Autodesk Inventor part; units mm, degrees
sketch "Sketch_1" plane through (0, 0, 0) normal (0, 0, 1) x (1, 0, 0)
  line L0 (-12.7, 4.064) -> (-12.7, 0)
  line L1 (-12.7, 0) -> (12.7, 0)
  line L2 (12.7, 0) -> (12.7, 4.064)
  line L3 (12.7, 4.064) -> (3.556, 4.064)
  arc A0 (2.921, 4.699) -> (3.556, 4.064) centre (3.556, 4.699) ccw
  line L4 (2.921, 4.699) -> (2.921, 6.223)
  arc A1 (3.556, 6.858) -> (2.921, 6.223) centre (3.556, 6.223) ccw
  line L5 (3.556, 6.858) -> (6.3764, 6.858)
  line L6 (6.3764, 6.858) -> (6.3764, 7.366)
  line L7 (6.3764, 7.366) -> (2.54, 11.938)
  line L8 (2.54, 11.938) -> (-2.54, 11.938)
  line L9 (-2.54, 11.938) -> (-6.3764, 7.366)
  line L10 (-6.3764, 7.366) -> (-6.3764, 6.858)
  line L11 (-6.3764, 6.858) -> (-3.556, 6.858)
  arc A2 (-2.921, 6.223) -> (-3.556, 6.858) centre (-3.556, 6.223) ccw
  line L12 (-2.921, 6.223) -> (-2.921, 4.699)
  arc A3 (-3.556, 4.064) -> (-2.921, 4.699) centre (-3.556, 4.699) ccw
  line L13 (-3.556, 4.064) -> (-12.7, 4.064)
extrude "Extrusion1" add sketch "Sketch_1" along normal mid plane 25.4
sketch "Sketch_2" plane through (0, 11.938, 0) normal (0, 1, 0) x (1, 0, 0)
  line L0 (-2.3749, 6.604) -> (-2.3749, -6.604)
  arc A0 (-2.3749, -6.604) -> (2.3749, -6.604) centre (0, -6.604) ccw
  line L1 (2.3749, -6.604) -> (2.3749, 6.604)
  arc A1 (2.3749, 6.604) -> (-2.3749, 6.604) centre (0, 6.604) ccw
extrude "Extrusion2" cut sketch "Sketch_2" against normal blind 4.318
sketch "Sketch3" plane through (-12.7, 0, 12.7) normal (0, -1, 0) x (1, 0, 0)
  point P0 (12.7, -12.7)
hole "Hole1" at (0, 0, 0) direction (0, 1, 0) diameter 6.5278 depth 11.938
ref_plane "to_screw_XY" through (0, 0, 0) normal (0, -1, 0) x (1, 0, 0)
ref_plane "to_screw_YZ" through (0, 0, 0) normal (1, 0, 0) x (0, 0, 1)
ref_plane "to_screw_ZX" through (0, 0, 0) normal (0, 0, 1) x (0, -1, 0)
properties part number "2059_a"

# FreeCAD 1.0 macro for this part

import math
import FreeCAD as App
import Part
import Sketcher

V = App.Vector
Q = App.Units.Quantity

doc = App.newDocument("Part")
body = doc.addObject("PartDesign::Body", "Body")

sketch1 = body.newObject("Sketcher::SketchObject", "Sketch")
sketch1.AttachmentSupport = (doc.getObject("XY_Plane"), [""])
sketch1.MapMode = "FlatFace"
sketch1.addGeometry(Part.LineSegment(V(-3.6, 4.1, 0), V(-12.7, 4.1, 0)), False)
sketch1.addGeometry(Part.LineSegment(V(-12.7, 4.1, 0), V(-12.7, 0, 0)), False)
sketch1.addGeometry(Part.LineSegment(V(-12.7, 0, 0), V(12.7, 0, 0)), False)
sketch1.addGeometry(Part.LineSegment(V(12.7, 0, 0), V(12.7, 4.1, 0)), False)
sketch1.addGeometry(Part.LineSegment(V(12.7, 4.1, 0), V(3.6, 4.1, 0)), False)
sketch1.addGeometry(Part.ArcOfCircle(Part.Circle(V(3.6, 4.7, 0), V(0, 0, 1), 0.6), math.radians(180), math.radians(270)), False)
sketch1.addGeometry(Part.LineSegment(V(2.9, 4.7, 0), V(2.9, 6.2, 0)), False)
sketch1.addGeometry(Part.ArcOfCircle(Part.Circle(V(3.6, 6.2, 0), V(0, 0, 1), 0.6), math.radians(90), math.radians(180)), False)
sketch1.addGeometry(Part.LineSegment(V(3.6, 6.9, 0), V(6.4, 6.9, 0)), False)
sketch1.addGeometry(Part.LineSegment(V(6.4, 6.9, 0), V(6.4, 7.4, 0)), False)
sketch1.addGeometry(Part.LineSegment(V(6.4, 7.4, 0), V(2.5, 11.9, 0)), False)
sketch1.addGeometry(Part.LineSegment(V(2.5, 11.9, 0), V(-2.5, 11.9, 0)), False)
sketch1.addGeometry(Part.LineSegment(V(-2.5, 11.9, 0), V(-6.4, 7.4, 0)), False)
sketch1.addGeometry(Part.LineSegment(V(-6.4, 7.4, 0), V(-6.4, 6.9, 0)), False)
sketch1.addGeometry(Part.LineSegment(V(-6.4, 6.9, 0), V(-3.6, 6.9, 0)), False)
sketch1.addGeometry(Part.ArcOfCircle(Part.Circle(V(-3.6, 6.2, 0), V(0, 0, 1), 0.6), math.radians(0), math.radians(90)), False)
sketch1.addGeometry(Part.LineSegment(V(-2.9, 6.2, 0), V(-2.9, 4.7, 0)), False)
sketch1.addGeometry(Part.ArcOfCircle(Part.Circle(V(-3.6, 4.7, 0), V(0, 0, 1), 0.6), math.radians(-90), math.radians(0)), False)
sketch1.addConstraint(Sketcher.Constraint("Coincident", 0, 2, 1, 1))
sketch1.addConstraint(Sketcher.Constraint("Coincident", 1, 2, 2, 1))
sketch1.addConstraint(Sketcher.Constraint("Coincident", 2, 2, 3, 1))
sketch1.addConstraint(Sketcher.Constraint("Coincident", 3, 2, 4, 1))
sketch1.addConstraint(Sketcher.Constraint("Tangent", 4, 2, 5, 2))
sketch1.addConstraint(Sketcher.Constraint("Tangent", 5, 1, 6, 1))
sketch1.addConstraint(Sketcher.Constraint("Tangent", 6, 2, 7, 2))
sketch1.addConstraint(Sketcher.Constraint("Tangent", 7, 1, 8, 1))
sketch1.addConstraint(Sketcher.Constraint("Coincident", 8, 2, 9, 1))
sketch1.addConstraint(Sketcher.Constraint("Coincident", 9, 2, 10, 1))
sketch1.addConstraint(Sketcher.Constraint("Coincident", 10, 2, 11, 1))
sketch1.addConstraint(Sketcher.Constraint("Coincident", 11, 2, 12, 1))
sketch1.addConstraint(Sketcher.Constraint("Coincident", 12, 2, 13, 1))
sketch1.addConstraint(Sketcher.Constraint("Coincident", 13, 2, 14, 1))
sketch1.addConstraint(Sketcher.Constraint("Tangent", 14, 2, 15, 2))
sketch1.addConstraint(Sketcher.Constraint("Tangent", 15, 1, 16, 1))
sketch1.addConstraint(Sketcher.Constraint("Tangent", 16, 2, 17, 2))
sketch1.addConstraint(Sketcher.Constraint("Tangent", 17, 1, 0, 1))
sketch1.addConstraint(Sketcher.Constraint("Horizontal", 0))
sketch1.addConstraint(Sketcher.Constraint("Vertical", 1))
sketch1.addConstraint(Sketcher.Constraint("Horizontal", 2))
sketch1.addConstraint(Sketcher.Constraint("Vertical", 3))
sketch1.addConstraint(Sketcher.Constraint("Horizontal", 4))
sketch1.addConstraint(Sketcher.Constraint("Vertical", 6))
sketch1.addConstraint(Sketcher.Constraint("Horizontal", 8))
sketch1.addConstraint(Sketcher.Constraint("Vertical", 9))
sketch1.addConstraint(Sketcher.Constraint("Horizontal", 11))
sketch1.addConstraint(Sketcher.Constraint("Vertical", 13))
sketch1.addConstraint(Sketcher.Constraint("Horizontal", 14))
sketch1.addConstraint(Sketcher.Constraint("Vertical", 16))
sketch1.addConstraint(Sketcher.Constraint("Equal", 5, 7))
sketch1.addConstraint(Sketcher.Constraint("Equal", 7, 15))
sketch1.addConstraint(Sketcher.Constraint("Equal", 15, 17))
sketch1.addConstraint(Sketcher.Constraint("Symmetric", 1, 2, 2, 2, -1, 1))
sketch1.addConstraint(Sketcher.Constraint("Symmetric", 7, 3, 15, 3, -2))
sketch1.addConstraint(Sketcher.Constraint("Symmetric", 9, 2, 12, 2, -2))
sketch1.addConstraint(Sketcher.Constraint("Horizontal", 5, 3, 17, 3))
sketch1.addConstraint(Sketcher.Constraint("Equal", 10, 12))
sketch1.addConstraint(Sketcher.Constraint("DistanceX", 2, 1, 2, 2, Q("1 in")))
sketch1.addConstraint(Sketcher.Constraint("DistanceX", 11, 2, 11, 1, Q("0.2 in")))
sketch1.addConstraint(Sketcher.Constraint("Angle", 10, Q("130.0003 deg")))
sketch1.addConstraint(Sketcher.Constraint("Radius", 5, Q("0.025 in")))
sketch1.addConstraint(Sketcher.Constraint("DistanceX", 0, 2, 0, 1, Q("0.36 in")))
sketch1.addConstraint(Sketcher.Constraint("DistanceY", 1, 2, 1, 1, Q("0.16 in")))
sketch1.addConstraint(Sketcher.Constraint("DistanceY", 6, 1, 6, 2, Q("0.06 in")))
sketch1.addConstraint(Sketcher.Constraint("DistanceY", 9, 1, 9, 2, Q("0.02 in")))
sketch1.addConstraint(Sketcher.Constraint("DistanceY", 7, 1, 10, 2, Q("0.2 in")))
pad1 = body.newObject("PartDesign::Pad", "Pad")
pad1.Profile = sketch1
pad1.Length = Q("1 in")
pad1.Midplane = True

sketch2 = body.newObject("Sketcher::SketchObject", "Sketch001")
sketch2.AttachmentSupport = (doc.getObject("XZ_Plane"), [""])
sketch2.MapMode = "FlatFace"
sketch2.AttachmentOffset = App.Placement(V(0, 0, -0.47 * 25.4), App.Rotation())
sketch2.addGeometry(Part.ArcOfCircle(Part.Circle(V(0, -6.6, 0), V(0, 0, 1), 2.4), math.radians(180), math.radians(360)), False)
sketch2.addGeometry(Part.LineSegment(V(-2.4, -6.6, 0), V(-2.4, 6.6, 0)), False)
sketch2.addGeometry(Part.ArcOfCircle(Part.Circle(V(0, 6.6, 0), V(0, 0, 1), 2.4), math.radians(0), math.radians(180)), False)
sketch2.addGeometry(Part.LineSegment(V(2.4, 6.6, 0), V(2.4, -6.6, 0)), False)
sketch2.addConstraint(Sketcher.Constraint("Tangent", 0, 1, 1, 1))
sketch2.addConstraint(Sketcher.Constraint("Tangent", 1, 2, 2, 2))
sketch2.addConstraint(Sketcher.Constraint("Tangent", 2, 1, 3, 1))
sketch2.addConstraint(Sketcher.Constraint("Tangent", 3, 2, 0, 2))
sketch2.addConstraint(Sketcher.Constraint("Vertical", 1))
sketch2.addConstraint(Sketcher.Constraint("Vertical", 3))
sketch2.addConstraint(Sketcher.Constraint("Symmetric", 0, 3, 2, 3, -1, 1))
sketch2.addConstraint(Sketcher.Constraint("DistanceY", 1, 1, 1, 2, Q("0.52 in")))
sketch2.addConstraint(Sketcher.Constraint("Radius", 0, Q("0.0935 in")))
pocket1 = body.newObject("PartDesign::Pocket", "Pocket")
pocket1.Profile = sketch2
pocket1.Length = Q("0.17 in")
pocket1.Reversed = True

sketch3 = body.newObject("Sketcher::SketchObject", "Sketch002")
sketch3.AttachmentSupport = (doc.getObject("XZ_Plane"), [""])
sketch3.MapMode = "FlatFace"
sketch3.addGeometry(Part.Circle(V(0, 0, 0), V(0, 0, 1), 3.3), False)
sketch3.addConstraint(Sketcher.Constraint("Coincident", 0, 3, -1, 1))
sketch3.addConstraint(Sketcher.Constraint("Diameter", 0, Q("0.257 in")))
doc.recompute()
hole = body.newObject("PartDesign::Hole", "Hole")
hole.Profile = sketch3
hole.ThreadType = "None"
hole.Diameter = Q("0.257 in")
hole.DepthType = "Dimension"
hole.Depth = Q("0.47 in")
hole.DrillPoint = "Flat"

doc.recompute()
